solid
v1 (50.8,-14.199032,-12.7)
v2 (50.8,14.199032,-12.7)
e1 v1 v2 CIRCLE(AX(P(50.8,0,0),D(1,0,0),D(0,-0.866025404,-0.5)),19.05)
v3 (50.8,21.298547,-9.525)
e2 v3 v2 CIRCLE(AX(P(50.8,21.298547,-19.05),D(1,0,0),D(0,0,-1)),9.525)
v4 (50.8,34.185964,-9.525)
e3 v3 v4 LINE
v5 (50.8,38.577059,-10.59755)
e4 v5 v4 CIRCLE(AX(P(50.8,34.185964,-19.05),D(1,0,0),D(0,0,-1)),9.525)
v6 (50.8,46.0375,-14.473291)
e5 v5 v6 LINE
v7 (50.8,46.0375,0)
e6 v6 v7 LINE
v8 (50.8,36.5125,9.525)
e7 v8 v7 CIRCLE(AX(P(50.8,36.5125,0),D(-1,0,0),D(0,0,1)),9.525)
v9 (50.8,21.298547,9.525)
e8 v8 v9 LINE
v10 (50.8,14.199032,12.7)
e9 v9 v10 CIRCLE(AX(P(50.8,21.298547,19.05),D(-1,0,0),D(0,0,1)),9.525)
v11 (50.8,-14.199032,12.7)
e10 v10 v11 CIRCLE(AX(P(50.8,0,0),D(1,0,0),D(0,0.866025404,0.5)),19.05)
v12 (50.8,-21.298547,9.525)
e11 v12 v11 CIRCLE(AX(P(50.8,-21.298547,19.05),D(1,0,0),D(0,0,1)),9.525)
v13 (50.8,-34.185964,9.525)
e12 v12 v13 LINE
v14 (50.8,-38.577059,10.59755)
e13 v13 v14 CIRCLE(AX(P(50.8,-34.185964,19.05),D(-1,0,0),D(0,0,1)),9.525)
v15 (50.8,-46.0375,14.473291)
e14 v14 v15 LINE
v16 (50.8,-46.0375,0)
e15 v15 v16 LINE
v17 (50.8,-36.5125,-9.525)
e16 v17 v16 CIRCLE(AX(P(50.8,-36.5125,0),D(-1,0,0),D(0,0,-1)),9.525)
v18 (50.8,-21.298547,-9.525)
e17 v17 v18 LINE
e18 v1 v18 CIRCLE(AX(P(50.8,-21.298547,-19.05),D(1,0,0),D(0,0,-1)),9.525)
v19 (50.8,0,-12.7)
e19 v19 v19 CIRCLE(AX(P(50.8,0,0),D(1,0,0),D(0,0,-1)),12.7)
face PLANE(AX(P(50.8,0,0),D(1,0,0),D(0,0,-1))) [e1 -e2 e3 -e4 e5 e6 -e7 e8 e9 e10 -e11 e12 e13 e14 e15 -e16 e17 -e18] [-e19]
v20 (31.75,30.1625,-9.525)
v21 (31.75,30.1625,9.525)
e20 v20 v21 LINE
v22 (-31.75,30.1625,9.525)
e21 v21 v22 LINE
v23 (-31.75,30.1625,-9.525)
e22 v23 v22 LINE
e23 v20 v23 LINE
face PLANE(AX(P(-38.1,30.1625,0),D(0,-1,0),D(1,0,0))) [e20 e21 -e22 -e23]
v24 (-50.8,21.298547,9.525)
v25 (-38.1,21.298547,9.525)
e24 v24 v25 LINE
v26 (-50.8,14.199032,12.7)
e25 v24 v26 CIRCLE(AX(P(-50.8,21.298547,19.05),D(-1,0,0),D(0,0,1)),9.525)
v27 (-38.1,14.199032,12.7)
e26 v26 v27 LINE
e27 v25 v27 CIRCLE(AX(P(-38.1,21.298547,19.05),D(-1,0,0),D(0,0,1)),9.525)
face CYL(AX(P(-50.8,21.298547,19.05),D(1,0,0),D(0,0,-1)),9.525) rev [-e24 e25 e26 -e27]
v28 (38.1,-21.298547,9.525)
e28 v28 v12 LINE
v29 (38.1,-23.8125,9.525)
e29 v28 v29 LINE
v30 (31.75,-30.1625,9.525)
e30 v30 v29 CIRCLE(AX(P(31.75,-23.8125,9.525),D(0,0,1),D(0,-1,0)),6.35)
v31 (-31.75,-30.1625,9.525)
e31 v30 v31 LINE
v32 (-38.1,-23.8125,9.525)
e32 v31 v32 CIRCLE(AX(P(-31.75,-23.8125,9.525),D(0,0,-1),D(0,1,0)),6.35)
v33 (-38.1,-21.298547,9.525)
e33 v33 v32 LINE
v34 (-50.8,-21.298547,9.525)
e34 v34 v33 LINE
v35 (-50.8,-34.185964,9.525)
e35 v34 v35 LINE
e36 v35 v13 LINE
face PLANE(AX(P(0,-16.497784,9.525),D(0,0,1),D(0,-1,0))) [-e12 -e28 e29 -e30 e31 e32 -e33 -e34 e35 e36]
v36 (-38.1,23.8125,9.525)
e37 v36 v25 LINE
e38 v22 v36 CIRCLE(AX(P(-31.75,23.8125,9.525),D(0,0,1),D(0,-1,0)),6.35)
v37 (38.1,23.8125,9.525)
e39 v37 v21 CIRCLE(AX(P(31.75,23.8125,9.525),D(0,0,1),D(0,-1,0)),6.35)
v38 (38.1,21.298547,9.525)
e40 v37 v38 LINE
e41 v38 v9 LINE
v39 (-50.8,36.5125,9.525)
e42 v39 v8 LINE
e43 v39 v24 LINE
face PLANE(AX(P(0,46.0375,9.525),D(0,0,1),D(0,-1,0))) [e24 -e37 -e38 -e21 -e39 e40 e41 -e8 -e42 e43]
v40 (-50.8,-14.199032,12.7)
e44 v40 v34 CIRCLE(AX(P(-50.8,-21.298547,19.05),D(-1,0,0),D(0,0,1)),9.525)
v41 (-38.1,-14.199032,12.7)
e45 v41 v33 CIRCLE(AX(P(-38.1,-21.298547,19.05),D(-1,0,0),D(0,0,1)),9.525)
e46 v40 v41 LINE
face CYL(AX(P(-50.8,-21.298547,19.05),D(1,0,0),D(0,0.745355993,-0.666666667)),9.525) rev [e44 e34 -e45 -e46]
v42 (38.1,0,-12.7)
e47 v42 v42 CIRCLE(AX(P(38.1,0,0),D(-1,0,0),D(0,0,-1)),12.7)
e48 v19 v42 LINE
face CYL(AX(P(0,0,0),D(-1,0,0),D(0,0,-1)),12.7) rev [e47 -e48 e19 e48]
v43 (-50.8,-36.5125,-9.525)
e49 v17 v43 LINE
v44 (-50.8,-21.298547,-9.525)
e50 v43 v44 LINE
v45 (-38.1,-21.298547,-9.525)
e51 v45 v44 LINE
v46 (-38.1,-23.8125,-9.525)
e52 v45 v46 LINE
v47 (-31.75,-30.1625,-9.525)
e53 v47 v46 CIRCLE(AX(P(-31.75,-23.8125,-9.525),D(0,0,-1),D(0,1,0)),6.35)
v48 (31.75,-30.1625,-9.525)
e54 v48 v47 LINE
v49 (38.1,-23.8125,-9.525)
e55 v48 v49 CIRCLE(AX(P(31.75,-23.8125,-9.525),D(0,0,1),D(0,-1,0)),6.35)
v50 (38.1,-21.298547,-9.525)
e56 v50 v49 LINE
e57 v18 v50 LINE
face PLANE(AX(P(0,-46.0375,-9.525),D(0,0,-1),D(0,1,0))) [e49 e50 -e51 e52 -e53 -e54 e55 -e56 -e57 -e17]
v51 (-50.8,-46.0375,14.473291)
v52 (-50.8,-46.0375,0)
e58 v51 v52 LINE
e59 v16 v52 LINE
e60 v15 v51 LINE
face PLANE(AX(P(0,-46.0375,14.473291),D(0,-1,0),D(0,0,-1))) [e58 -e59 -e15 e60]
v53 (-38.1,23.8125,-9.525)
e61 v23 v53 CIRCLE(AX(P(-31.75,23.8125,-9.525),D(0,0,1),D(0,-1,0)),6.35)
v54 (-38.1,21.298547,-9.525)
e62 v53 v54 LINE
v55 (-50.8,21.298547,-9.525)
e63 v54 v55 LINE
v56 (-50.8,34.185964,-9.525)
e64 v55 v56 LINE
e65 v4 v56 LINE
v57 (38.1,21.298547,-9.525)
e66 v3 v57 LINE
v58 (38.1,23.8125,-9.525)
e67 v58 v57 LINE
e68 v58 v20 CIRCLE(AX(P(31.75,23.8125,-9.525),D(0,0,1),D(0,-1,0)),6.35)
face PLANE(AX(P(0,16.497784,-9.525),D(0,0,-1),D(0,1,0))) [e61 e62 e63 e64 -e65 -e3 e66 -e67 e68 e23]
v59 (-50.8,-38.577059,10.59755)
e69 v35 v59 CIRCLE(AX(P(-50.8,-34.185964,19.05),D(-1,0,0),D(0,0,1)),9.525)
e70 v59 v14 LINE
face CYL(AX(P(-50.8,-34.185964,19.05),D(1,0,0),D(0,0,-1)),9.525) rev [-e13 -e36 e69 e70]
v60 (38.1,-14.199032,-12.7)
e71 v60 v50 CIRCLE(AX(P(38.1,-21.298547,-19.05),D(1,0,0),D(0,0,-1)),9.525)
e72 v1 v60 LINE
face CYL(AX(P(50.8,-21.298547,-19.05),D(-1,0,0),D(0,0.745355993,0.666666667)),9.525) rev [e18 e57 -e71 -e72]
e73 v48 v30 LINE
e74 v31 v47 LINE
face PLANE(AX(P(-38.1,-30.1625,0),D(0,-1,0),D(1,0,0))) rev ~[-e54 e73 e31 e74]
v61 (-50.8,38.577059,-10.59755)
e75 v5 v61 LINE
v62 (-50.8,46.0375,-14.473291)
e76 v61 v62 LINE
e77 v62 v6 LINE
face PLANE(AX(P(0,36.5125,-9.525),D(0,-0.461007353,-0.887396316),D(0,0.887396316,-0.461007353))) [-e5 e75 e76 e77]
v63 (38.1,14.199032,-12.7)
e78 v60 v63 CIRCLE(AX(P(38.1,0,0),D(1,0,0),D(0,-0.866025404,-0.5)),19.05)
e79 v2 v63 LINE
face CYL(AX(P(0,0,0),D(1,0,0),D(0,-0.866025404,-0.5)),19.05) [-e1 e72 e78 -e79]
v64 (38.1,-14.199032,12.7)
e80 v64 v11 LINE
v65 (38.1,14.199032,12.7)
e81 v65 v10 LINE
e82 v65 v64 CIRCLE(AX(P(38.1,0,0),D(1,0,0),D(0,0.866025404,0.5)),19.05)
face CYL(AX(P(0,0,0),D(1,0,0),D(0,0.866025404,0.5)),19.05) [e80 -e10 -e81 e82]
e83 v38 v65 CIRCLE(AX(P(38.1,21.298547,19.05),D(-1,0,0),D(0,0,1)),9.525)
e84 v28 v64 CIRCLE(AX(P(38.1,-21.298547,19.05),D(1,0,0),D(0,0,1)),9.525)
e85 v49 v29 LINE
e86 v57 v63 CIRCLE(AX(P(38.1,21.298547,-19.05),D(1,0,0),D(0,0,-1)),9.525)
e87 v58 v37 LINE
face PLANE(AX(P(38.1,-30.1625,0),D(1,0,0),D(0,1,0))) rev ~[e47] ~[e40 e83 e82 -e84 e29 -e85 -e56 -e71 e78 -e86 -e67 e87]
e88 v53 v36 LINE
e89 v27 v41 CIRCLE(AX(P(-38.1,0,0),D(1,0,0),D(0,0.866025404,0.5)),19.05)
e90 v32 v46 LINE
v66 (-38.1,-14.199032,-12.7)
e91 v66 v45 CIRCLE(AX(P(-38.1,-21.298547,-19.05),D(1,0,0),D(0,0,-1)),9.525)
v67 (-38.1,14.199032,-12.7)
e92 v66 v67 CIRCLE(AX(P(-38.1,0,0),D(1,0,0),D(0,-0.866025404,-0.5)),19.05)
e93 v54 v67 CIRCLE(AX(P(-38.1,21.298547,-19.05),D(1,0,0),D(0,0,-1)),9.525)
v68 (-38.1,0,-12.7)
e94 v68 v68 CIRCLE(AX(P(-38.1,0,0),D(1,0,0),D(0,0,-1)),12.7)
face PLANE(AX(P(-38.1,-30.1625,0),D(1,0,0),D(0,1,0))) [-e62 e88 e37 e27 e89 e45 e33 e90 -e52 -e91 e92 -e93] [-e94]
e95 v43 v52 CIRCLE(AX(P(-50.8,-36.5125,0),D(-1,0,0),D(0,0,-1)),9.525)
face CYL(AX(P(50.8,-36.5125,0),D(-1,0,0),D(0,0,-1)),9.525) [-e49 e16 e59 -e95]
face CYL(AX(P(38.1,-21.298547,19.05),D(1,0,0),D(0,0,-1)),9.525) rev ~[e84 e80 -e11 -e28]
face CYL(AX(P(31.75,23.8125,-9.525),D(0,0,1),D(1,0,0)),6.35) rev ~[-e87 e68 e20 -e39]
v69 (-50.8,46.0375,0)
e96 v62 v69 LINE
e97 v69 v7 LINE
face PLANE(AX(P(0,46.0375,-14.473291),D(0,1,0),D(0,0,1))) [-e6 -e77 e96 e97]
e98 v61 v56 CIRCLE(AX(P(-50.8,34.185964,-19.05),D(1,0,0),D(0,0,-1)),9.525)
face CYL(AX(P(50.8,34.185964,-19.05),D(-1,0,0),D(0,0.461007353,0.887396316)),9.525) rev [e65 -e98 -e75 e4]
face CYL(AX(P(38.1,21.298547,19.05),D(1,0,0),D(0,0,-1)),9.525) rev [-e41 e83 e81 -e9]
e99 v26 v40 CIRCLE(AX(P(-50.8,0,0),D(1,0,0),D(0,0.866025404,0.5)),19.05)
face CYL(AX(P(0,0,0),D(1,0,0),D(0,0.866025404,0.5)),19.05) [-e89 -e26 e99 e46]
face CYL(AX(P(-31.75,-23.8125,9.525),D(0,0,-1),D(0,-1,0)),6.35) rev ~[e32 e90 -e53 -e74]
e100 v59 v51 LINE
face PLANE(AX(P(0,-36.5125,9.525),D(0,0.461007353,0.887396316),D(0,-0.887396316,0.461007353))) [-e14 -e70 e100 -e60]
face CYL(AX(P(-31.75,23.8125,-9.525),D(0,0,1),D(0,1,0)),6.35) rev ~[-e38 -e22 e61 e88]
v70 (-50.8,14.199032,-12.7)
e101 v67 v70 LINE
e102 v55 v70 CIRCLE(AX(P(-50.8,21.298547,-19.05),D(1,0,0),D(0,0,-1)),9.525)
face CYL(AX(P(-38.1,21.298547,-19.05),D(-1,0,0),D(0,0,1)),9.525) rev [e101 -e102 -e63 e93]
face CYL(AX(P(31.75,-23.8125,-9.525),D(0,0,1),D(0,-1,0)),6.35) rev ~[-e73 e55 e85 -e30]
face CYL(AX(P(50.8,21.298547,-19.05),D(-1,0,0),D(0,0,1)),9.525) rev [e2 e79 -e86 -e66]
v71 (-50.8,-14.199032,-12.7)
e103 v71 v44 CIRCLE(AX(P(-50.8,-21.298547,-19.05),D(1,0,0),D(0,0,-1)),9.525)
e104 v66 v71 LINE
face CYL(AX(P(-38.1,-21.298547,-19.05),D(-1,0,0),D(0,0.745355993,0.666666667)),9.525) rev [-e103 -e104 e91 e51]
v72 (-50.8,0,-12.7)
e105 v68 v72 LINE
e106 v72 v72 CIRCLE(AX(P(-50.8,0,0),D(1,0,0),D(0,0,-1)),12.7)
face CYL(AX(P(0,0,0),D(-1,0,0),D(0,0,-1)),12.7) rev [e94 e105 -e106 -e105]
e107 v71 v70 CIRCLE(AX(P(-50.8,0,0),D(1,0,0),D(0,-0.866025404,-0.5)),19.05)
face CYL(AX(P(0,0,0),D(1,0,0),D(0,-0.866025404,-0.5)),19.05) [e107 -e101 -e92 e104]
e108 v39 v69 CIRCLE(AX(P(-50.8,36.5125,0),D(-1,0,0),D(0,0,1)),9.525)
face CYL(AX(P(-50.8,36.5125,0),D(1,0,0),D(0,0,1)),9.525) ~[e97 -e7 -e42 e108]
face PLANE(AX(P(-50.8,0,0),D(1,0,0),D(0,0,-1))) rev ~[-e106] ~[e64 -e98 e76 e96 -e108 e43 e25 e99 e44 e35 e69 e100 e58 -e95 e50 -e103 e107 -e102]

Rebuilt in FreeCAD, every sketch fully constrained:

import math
import FreeCAD as App
import Part
import Sketcher
Q = App.Units.Quantity


def edges_at(feature, points):
    """Names of the edges that pass closest to the given points."""
    edges = feature.Shape.Edges
    near = lambda p: min(range(len(edges)), key=lambda i: edges[i].distToShape(Part.Vertex(*p))[0])
    return sorted({f"Edge{near(p) + 1}" for p in points})


def add_polygon(sketch, points):
    """Adds a closed chain of lines whose ends are joined by coincident constraints."""
    first, n = sketch.GeometryCount, len(points)
    for a, b in zip(points, points[1:] + points[:1]):
        sketch.addGeometry(Part.LineSegment(App.Vector(*a, 0), App.Vector(*b, 0)), False)
    for i in range(n):
        sketch.addConstraint(Sketcher.Constraint("Coincident", first + i, 2, first + (i + 1) % n, 1))

doc = App.newDocument("Part")
body = doc.addObject("PartDesign::Body", "Body")

# Sketch on YZ plane
sketch1 = body.newObject("Sketcher::SketchObject", "Sketch")
sketch1.AttachmentSupport = (doc.getObject("YZ_Plane"), [""])
sketch1.MapMode = "FlatFace"
sketch1.addGeometry([
    Part.LineSegment(App.Vector(37, -10, 0), App.Vector(46, -14, 0)),  # 0
    Part.LineSegment(App.Vector(46, -14, 0), App.Vector(46, 10, 0)),  # 1
    Part.LineSegment(App.Vector(46, 10, 0), App.Vector(16, 10, 0)),  # 2
    Part.ArcOfCircle(Part.Circle(App.Vector(0, 0, 0), App.Vector(0, 0, 1), 19), math.radians(30), math.radians(150)),  # 3
    Part.LineSegment(App.Vector(-16, 10, 0), App.Vector(-37, 10, 0)),  # 4
    Part.LineSegment(App.Vector(-37, 10, 0), App.Vector(-46, 14, 0)),  # 5
    Part.LineSegment(App.Vector(-46, 14, 0), App.Vector(-46, -10, 0)),  # 6
    Part.LineSegment(App.Vector(-46, -10, 0), App.Vector(-16, -10, 0)),  # 7
    Part.ArcOfCircle(Part.Circle(App.Vector(0, 0, 0), App.Vector(0, 0, 1), 19), math.radians(-150), math.radians(-30)),  # 8
    Part.LineSegment(App.Vector(16, -10, 0), App.Vector(37, -10, 0)),  # 9
    Part.Circle(App.Vector(0, 0, 0), App.Vector(0, 0, 1), 13),  # 10
], False)
sketch1.addConstraint([
    Sketcher.Constraint("Coincident", 0, 2, 1, 1),
    Sketcher.Constraint("Coincident", 1, 2, 2, 1),
    Sketcher.Constraint("Coincident", 2, 2, 3, 1),
    Sketcher.Constraint("Coincident", 3, 2, 4, 1),
    Sketcher.Constraint("Coincident", 4, 2, 5, 1),
    Sketcher.Constraint("Coincident", 5, 2, 6, 1),
    Sketcher.Constraint("Coincident", 6, 2, 7, 1),
    Sketcher.Constraint("Coincident", 7, 2, 8, 1),
    Sketcher.Constraint("Coincident", 8, 2, 9, 1),
    Sketcher.Constraint("Coincident", 9, 2, 0, 1),
    Sketcher.Constraint("Vertical", 1),
    Sketcher.Constraint("Horizontal", 2),
    Sketcher.Constraint("Horizontal", 4),
    Sketcher.Constraint("Vertical", 6),
    Sketcher.Constraint("Horizontal", 7),
    Sketcher.Constraint("Horizontal", 9),
    Sketcher.Constraint("Coincident", 3, 3, -1, 1),
    Sketcher.Constraint("Coincident", 8, 3, -1, 1),
    Sketcher.Constraint("Coincident", 10, 3, -1, 1),
    Sketcher.Constraint("Equal", 3, 8),
    Sketcher.Constraint("Symmetric", 0, 2, 5, 2, -1, 1),
    Sketcher.Constraint("Symmetric", 4, 2, 9, 2, -1, 1),
    Sketcher.Constraint("Horizontal", 2, 2, 3, 2),
    Sketcher.Constraint("Horizontal", 7, 2, 8, 2),
    Sketcher.Constraint("Diameter", 10, Q("1 in")),
    Sketcher.Constraint("Radius", 3, Q("0.75 in")),
    Sketcher.Constraint("DistanceY", 6, 2, 4, 2, Q("0.75 in")),
    Sketcher.Constraint("DistanceX", -1, 1, 0, 2, Q("1.8125 in")),
    Sketcher.Constraint("DistanceX", 4, 2, -1, 1, Q("1.4375 in")),
    Sketcher.Constraint("DistanceY", 1, 1, 1, 2, Q("23.998291 mm")),
])
pad1 = body.newObject("PartDesign::Pad", "Pad")
pad1.Profile = sketch1
pad1.Length = Q("4 in")
pad1.Midplane = True

# Sketch on XY plane
sketch2 = body.newObject("Sketcher::SketchObject", "Sketch001")
sketch2.AttachmentSupport = (doc.getObject("XY_Plane"), [""])
sketch2.MapMode = "FlatFace"
add_polygon(sketch2, [(-38, 30), (-38, -30), (38, -30), (38, 30)])  # lines 0-3
sketch2.addConstraint([
    Sketcher.Constraint("Vertical", 0),
    Sketcher.Constraint("Horizontal", 1),
    Sketcher.Constraint("Vertical", 2),
    Sketcher.Constraint("Horizontal", 3),
    Sketcher.Constraint("Symmetric", 0, 2, 2, 2, -1, 1),
    Sketcher.Constraint("DistanceX", 1, 1, 1, 2, Q("3 in")),
    Sketcher.Constraint("DistanceY", 0, 2, 0, 1, Q("2.375 in")),
])
pocket1 = body.newObject("PartDesign::Pocket", "Pocket")
pocket1.Profile = sketch2
pocket1.Type = "ThroughAll"
pocket1.Midplane = True
doc.recompute()

fillet = body.newObject("PartDesign::Fillet", "Fillet")
fillet.Base = (pocket1, edges_at(pocket1, [
    (-38.1, 30.163, 0),
    (38.1, -30.163, 0),
    (38.1, 30.163, 0),
    (-38.1, -30.163, 0),
]))
fillet.Radius = Q("0.25 in")
doc.recompute()

fillet2 = body.newObject("PartDesign::Fillet", "Fillet001")
fillet2.Base = (fillet, edges_at(fillet, [
    (44.45, 16.498, -9.525),
    (44.45, -16.498, -9.525),
    (44.45, -16.498, 9.525),
    (44.45, 16.498, 9.525),
    (-44.45, 16.498, -9.525),
    (-44.45, -16.498, -9.525),
    (-44.45, -16.498, 9.525),
    (-44.45, 16.498, 9.525),
]))
fillet2.Radius = Q("0.375 in")
doc.recompute()

fillet3 = body.newObject("PartDesign::Fillet", "Fillet002")
fillet3.Base = (fillet2, edges_at(fillet2, [(0, -46.038, -9.525), (0, 46.038, 9.525)]))
fillet3.Radius = Q("0.375 in")
doc.recompute()

fillet4 = body.newObject("PartDesign::Fillet", "Fillet003")
fillet4.Base = (fillet3, edges_at(fillet3, [(0, -36.513, 9.525), (0, 36.513, -9.525)]))
fillet4.Radius = Q("0.375 in")

doc.recompute()
